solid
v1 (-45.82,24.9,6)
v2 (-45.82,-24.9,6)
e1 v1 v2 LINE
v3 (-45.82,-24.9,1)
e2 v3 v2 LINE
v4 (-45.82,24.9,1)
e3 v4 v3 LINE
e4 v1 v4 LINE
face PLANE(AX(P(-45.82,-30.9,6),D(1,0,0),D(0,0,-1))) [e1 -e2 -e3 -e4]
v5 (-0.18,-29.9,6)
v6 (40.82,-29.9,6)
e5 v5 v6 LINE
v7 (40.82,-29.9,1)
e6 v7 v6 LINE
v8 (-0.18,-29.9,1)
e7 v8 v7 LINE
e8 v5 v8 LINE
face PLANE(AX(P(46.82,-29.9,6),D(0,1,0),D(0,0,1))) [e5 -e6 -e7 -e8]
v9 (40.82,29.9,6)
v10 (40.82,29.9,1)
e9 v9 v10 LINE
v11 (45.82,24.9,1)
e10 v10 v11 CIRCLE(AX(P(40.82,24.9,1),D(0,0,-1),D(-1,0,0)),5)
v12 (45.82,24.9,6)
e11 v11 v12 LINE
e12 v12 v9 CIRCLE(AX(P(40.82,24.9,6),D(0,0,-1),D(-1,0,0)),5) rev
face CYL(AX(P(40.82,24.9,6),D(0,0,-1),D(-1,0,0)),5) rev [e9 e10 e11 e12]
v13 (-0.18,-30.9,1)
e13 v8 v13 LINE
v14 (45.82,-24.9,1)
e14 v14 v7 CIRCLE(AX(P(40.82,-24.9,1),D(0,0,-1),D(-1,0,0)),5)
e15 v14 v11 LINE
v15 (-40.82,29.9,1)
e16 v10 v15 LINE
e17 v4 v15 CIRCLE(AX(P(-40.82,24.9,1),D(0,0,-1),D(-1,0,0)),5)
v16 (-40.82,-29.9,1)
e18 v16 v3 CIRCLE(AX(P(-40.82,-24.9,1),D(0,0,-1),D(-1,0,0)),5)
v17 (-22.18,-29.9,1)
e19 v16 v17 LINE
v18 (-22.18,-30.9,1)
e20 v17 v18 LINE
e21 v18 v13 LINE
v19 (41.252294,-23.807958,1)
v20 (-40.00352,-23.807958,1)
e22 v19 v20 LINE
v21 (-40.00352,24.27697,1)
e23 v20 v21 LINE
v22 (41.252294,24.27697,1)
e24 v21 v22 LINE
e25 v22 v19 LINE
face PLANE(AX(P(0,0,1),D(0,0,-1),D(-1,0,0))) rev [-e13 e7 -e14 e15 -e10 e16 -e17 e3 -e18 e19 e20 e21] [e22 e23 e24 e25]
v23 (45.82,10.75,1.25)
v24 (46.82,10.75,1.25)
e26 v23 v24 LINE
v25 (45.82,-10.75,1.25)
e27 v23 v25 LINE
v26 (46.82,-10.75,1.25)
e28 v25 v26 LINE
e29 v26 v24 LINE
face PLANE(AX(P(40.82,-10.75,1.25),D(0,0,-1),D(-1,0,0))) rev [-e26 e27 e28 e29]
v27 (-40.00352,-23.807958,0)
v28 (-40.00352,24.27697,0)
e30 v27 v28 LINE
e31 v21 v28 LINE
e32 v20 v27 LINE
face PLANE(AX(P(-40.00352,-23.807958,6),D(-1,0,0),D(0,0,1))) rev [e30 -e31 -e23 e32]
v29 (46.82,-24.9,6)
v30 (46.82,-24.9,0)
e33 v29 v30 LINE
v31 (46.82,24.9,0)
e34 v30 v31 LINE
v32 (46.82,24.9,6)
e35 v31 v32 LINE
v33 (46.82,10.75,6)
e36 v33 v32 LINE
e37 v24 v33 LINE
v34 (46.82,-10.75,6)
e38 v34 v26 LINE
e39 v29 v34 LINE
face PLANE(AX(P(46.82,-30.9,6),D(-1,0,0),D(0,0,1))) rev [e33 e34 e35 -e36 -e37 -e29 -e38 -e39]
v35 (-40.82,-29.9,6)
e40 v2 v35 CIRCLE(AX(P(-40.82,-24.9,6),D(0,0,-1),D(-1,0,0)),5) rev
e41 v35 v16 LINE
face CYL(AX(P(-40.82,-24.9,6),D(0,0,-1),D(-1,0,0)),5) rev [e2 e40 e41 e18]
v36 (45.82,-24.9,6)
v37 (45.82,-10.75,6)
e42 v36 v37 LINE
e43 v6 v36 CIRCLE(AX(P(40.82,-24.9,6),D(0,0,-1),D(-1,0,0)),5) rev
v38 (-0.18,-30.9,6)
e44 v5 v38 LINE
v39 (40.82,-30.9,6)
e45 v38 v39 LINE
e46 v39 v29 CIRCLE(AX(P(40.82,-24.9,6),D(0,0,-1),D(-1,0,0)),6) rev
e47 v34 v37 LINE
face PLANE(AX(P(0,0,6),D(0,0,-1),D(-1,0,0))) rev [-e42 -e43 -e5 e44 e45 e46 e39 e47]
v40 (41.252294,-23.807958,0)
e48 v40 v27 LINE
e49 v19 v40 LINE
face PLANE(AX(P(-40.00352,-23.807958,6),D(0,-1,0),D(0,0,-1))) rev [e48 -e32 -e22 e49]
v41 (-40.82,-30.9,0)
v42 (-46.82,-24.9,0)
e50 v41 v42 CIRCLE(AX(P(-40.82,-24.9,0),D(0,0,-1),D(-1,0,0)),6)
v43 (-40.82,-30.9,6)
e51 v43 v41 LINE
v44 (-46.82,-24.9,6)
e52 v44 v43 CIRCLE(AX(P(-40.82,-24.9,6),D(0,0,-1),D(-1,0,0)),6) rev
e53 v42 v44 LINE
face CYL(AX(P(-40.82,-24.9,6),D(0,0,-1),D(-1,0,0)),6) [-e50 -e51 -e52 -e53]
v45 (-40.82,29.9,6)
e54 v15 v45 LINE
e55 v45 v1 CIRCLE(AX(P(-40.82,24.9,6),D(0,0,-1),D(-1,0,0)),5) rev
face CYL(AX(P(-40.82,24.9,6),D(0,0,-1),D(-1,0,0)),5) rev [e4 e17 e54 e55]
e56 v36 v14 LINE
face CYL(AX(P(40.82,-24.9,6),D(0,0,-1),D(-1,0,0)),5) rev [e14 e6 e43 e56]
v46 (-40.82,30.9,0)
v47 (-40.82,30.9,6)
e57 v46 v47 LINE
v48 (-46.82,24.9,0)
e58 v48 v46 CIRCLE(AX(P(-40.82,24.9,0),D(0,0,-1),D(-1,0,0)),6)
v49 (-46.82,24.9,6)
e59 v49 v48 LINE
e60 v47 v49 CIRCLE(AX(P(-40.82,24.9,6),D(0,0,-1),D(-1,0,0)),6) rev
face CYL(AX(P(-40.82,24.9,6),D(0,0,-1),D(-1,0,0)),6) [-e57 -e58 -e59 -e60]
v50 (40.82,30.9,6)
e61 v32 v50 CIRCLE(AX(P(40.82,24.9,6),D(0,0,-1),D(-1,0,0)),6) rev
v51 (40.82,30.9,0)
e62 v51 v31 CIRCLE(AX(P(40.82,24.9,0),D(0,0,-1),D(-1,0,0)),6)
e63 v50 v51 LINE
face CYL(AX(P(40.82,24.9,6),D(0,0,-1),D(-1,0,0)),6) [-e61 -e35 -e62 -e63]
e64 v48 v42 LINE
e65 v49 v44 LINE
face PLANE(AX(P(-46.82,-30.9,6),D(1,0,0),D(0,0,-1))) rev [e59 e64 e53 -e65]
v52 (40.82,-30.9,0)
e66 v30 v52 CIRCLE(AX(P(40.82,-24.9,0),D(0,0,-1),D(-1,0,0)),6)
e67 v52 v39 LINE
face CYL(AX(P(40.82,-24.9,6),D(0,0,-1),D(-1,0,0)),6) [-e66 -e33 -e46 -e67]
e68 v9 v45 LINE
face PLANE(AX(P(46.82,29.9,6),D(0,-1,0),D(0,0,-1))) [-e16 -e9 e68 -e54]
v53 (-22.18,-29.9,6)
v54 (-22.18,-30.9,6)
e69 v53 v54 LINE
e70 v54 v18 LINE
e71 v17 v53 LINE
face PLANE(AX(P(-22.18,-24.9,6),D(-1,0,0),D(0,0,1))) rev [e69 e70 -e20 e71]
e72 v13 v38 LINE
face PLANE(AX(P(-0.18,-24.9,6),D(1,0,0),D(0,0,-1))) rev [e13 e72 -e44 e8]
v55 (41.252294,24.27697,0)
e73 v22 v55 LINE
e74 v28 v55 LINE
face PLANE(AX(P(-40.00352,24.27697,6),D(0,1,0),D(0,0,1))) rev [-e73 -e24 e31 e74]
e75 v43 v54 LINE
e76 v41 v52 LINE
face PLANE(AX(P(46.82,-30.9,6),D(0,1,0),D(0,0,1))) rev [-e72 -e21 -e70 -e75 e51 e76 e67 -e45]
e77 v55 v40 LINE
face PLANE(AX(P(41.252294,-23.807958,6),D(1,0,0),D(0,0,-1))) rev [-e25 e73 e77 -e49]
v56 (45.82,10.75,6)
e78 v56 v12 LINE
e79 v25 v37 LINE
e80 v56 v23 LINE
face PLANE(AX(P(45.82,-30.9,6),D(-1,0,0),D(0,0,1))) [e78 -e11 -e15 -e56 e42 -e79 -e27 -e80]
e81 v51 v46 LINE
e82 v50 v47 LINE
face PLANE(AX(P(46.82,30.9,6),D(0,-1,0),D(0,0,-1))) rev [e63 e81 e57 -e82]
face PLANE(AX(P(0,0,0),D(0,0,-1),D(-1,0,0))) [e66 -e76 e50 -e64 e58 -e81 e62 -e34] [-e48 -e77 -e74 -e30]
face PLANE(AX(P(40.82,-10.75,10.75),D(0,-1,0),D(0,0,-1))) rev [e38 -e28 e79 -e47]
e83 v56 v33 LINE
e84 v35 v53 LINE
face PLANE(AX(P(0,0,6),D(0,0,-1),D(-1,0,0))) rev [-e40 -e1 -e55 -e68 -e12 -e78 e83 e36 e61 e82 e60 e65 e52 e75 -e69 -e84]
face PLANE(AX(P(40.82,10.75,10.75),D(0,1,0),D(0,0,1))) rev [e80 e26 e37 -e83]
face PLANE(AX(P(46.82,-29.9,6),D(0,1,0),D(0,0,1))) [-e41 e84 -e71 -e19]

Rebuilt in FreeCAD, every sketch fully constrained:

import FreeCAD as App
import Part
import Sketcher
from FreeCAD import Vector


def edges_at(feature, points):
    """Names of the edges that pass closest to the given points."""
    edges = feature.Shape.Edges
    near = lambda p: min(range(len(edges)), key=lambda i: edges[i].distToShape(Part.Vertex(*p))[0])
    return sorted({f"Edge{near(p) + 1}" for p in points})


def faces_at(feature, points):
    """Names of the faces that lie closest to the given points."""
    faces = feature.Shape.Faces
    near = lambda p: min(range(len(faces)), key=lambda i: faces[i].distToShape(Part.Vertex(*p))[0])
    return sorted({f"Face{near(p) + 1}" for p in points})

doc = App.newDocument("Part")
body = doc.addObject("PartDesign::Body", "Body")

sketch1 = doc.addObject("Sketcher::SketchObject", "Sketch")
body.addObject(sketch1)
sketch1.AttachmentSupport = (doc.XY_Plane, [""])
sketch1.MapMode = "FlatFace"
sketch1.addGeometry([
    Part.LineSegment(Vector(-46.82, -30.9, 0), Vector(46.82, -30.9, 0)),
    Part.LineSegment(Vector(46.82, -30.9, 0), Vector(46.82, 30.9, 0)),
    Part.LineSegment(Vector(46.82, 30.9, 0), Vector(-46.82, 30.9, 0)),
    Part.LineSegment(Vector(-46.82, 30.9, 0), Vector(-46.82, -30.9, 0)),
], False)
sketch1.addConstraint([
    Sketcher.Constraint("Coincident", 0, 2, 1, 1),
    Sketcher.Constraint("Coincident", 1, 2, 2, 1),
    Sketcher.Constraint("Coincident", 2, 2, 3, 1),
    Sketcher.Constraint("Coincident", 3, 2, 0, 1),
    Sketcher.Constraint("Horizontal", 0),
    Sketcher.Constraint("Vertical", 1),
    Sketcher.Constraint("Horizontal", 2),
    Sketcher.Constraint("Vertical", 3),
    Sketcher.Constraint("Symmetric", 0, 2, 2, 2, -1, 1),
    Sketcher.Constraint("DistanceY", 1, 1, 1, 2, 61.8),
    Sketcher.Constraint("DistanceX", 0, 1, 0, 2, 93.64),
])
pad1 = doc.addObject("PartDesign::Pad", "Pad")
body.addObject(pad1)
pad1.Profile = sketch1
pad1.Length = 6
doc.recompute()

fillet = doc.addObject("PartDesign::Fillet", "Fillet")
body.addObject(fillet)
fillet.Base = (pad1, edges_at(pad1, [
    (46.82, 30.9, 3),
    (46.82, -30.9, 3),
    (-46.82, -30.9, 3),
    (-46.82, 30.9, 3),
]))
fillet.Radius = 6
doc.recompute()

thickness = doc.addObject("PartDesign::Thickness", "Thickness")
body.addObject(thickness)
thickness.Base = (fillet, faces_at(fillet, [(0, 0, 6)]))
thickness.Value = 1
thickness.Reversed = True
thickness.Join = "Intersection"

sketch2 = doc.addObject("Sketcher::SketchObject", "Sketch001")
body.addObject(sketch2)
sketch2.AttachmentSupport = (doc.YZ_Plane, [""])
sketch2.MapMode = "FlatFace"
sketch2.AttachmentOffset = App.Placement(Vector(0, 0, 46.82), App.Rotation())
sketch2.addGeometry([
    Part.LineSegment(Vector(-10.75, 10.75, 0), Vector(-10.75, 1.25, 0)),
    Part.LineSegment(Vector(-10.75, 1.25, 0), Vector(10.75, 1.25, 0)),
    Part.LineSegment(Vector(10.75, 1.25, 0), Vector(10.75, 10.75, 0)),
    Part.LineSegment(Vector(10.75, 10.75, 0), Vector(-10.75, 10.75, 0)),
], False)
sketch2.addConstraint([
    Sketcher.Constraint("Coincident", 0, 2, 1, 1),
    Sketcher.Constraint("Coincident", 1, 2, 2, 1),
    Sketcher.Constraint("Coincident", 2, 2, 3, 1),
    Sketcher.Constraint("Coincident", 3, 2, 0, 1),
    Sketcher.Constraint("Vertical", 0),
    Sketcher.Constraint("Horizontal", 1),
    Sketcher.Constraint("Vertical", 2),
    Sketcher.Constraint("Horizontal", 3),
    Sketcher.Constraint("DistanceX", 1, 1, 1, 2, 21.5),
    Sketcher.Constraint("DistanceY", 0, 2, 0, 1, 9.5),
    Sketcher.Constraint("DistanceX", 0, 2, -1, 1, 10.75),
    Sketcher.Constraint("DistanceY", -1, 1, 0, 2, 1.25),
])
pocket1 = doc.addObject("PartDesign::Pocket", "Pocket")
body.addObject(pocket1)
pocket1.Profile = sketch2
pocket1.Length = 6

sketch3 = doc.addObject("Sketcher::SketchObject", "Sketch002")
body.addObject(sketch3)
sketch3.AttachmentSupport = (doc.XZ_Plane, [""])
sketch3.MapMode = "FlatFace"
sketch3.AttachmentOffset = App.Placement(Vector(0, 0, 30.9), App.Rotation())
sketch3.addGeometry([
    Part.LineSegment(Vector(-22.18, 6, 0), Vector(-22.18, 1, 0)),
    Part.LineSegment(Vector(-22.18, 1, 0), Vector(-0.18, 1, 0)),
    Part.LineSegment(Vector(-0.18, 1, 0), Vector(-0.18, 6, 0)),
    Part.LineSegment(Vector(-0.18, 6, 0), Vector(-22.18, 6, 0)),
], False)
sketch3.addConstraint([
    Sketcher.Constraint("Coincident", 0, 2, 1, 1),
    Sketcher.Constraint("Coincident", 1, 2, 2, 1),
    Sketcher.Constraint("Coincident", 2, 2, 3, 1),
    Sketcher.Constraint("Coincident", 3, 2, 0, 1),
    Sketcher.Constraint("Vertical", 0),
    Sketcher.Constraint("Horizontal", 1),
    Sketcher.Constraint("Vertical", 2),
    Sketcher.Constraint("Horizontal", 3),
    Sketcher.Constraint("DistanceX", 1, 1, 1, 2, 22.0),
    Sketcher.Constraint("DistanceY", 0, 2, 0, 1, 5.0),
    Sketcher.Constraint("DistanceY", -1, 1, 0, 2, 1.0),
    Sketcher.Constraint("DistanceX", 0, 2, -1, 1, 22.18),
])
pocket2 = doc.addObject("PartDesign::Pocket", "Pocket001")
body.addObject(pocket2)
pocket2.Profile = sketch3
pocket2.Length = 6

sketch4 = doc.addObject("Sketcher::SketchObject", "Sketch003")
body.addObject(sketch4)
sketch4.AttachmentSupport = (doc.XY_Plane, [""])
sketch4.MapMode = "FlatFace"
sketch4.addGeometry([
    Part.LineSegment(Vector(-40.00352, -23.807958, 0), Vector(-40.00352, 24.27697, 0)),
    Part.LineSegment(Vector(-40.00352, 24.27697, 0), Vector(41.252294, 24.27697, 0)),
    Part.LineSegment(Vector(41.252294, 24.27697, 0), Vector(41.252294, -23.807958, 0)),
    Part.LineSegment(Vector(41.252294, -23.807958, 0), Vector(-40.00352, -23.807958, 0)),
], False)
sketch4.addConstraint([
    Sketcher.Constraint("Coincident", 0, 2, 1, 1),
    Sketcher.Constraint("Coincident", 1, 2, 2, 1),
    Sketcher.Constraint("Coincident", 2, 2, 3, 1),
    Sketcher.Constraint("Coincident", 3, 2, 0, 1),
    Sketcher.Constraint("Vertical", 0),
    Sketcher.Constraint("Horizontal", 1),
    Sketcher.Constraint("Vertical", 2),
    Sketcher.Constraint("Horizontal", 3),
    Sketcher.Constraint("DistanceY", 0, 1, 0, 2, 48.084928),
    Sketcher.Constraint("DistanceX", 1, 1, 1, 2, 81.255814),
    Sketcher.Constraint("DistanceX", 0, 2, -1, 1, 40.00352),
    Sketcher.Constraint("DistanceY", -1, 1, 0, 2, 24.27697),
])
pocket3 = doc.addObject("PartDesign::Pocket", "Pocket002")
body.addObject(pocket3)
pocket3.Profile = sketch4
pocket3.Length = 6
pocket3.Reversed = True

doc.recompute()
